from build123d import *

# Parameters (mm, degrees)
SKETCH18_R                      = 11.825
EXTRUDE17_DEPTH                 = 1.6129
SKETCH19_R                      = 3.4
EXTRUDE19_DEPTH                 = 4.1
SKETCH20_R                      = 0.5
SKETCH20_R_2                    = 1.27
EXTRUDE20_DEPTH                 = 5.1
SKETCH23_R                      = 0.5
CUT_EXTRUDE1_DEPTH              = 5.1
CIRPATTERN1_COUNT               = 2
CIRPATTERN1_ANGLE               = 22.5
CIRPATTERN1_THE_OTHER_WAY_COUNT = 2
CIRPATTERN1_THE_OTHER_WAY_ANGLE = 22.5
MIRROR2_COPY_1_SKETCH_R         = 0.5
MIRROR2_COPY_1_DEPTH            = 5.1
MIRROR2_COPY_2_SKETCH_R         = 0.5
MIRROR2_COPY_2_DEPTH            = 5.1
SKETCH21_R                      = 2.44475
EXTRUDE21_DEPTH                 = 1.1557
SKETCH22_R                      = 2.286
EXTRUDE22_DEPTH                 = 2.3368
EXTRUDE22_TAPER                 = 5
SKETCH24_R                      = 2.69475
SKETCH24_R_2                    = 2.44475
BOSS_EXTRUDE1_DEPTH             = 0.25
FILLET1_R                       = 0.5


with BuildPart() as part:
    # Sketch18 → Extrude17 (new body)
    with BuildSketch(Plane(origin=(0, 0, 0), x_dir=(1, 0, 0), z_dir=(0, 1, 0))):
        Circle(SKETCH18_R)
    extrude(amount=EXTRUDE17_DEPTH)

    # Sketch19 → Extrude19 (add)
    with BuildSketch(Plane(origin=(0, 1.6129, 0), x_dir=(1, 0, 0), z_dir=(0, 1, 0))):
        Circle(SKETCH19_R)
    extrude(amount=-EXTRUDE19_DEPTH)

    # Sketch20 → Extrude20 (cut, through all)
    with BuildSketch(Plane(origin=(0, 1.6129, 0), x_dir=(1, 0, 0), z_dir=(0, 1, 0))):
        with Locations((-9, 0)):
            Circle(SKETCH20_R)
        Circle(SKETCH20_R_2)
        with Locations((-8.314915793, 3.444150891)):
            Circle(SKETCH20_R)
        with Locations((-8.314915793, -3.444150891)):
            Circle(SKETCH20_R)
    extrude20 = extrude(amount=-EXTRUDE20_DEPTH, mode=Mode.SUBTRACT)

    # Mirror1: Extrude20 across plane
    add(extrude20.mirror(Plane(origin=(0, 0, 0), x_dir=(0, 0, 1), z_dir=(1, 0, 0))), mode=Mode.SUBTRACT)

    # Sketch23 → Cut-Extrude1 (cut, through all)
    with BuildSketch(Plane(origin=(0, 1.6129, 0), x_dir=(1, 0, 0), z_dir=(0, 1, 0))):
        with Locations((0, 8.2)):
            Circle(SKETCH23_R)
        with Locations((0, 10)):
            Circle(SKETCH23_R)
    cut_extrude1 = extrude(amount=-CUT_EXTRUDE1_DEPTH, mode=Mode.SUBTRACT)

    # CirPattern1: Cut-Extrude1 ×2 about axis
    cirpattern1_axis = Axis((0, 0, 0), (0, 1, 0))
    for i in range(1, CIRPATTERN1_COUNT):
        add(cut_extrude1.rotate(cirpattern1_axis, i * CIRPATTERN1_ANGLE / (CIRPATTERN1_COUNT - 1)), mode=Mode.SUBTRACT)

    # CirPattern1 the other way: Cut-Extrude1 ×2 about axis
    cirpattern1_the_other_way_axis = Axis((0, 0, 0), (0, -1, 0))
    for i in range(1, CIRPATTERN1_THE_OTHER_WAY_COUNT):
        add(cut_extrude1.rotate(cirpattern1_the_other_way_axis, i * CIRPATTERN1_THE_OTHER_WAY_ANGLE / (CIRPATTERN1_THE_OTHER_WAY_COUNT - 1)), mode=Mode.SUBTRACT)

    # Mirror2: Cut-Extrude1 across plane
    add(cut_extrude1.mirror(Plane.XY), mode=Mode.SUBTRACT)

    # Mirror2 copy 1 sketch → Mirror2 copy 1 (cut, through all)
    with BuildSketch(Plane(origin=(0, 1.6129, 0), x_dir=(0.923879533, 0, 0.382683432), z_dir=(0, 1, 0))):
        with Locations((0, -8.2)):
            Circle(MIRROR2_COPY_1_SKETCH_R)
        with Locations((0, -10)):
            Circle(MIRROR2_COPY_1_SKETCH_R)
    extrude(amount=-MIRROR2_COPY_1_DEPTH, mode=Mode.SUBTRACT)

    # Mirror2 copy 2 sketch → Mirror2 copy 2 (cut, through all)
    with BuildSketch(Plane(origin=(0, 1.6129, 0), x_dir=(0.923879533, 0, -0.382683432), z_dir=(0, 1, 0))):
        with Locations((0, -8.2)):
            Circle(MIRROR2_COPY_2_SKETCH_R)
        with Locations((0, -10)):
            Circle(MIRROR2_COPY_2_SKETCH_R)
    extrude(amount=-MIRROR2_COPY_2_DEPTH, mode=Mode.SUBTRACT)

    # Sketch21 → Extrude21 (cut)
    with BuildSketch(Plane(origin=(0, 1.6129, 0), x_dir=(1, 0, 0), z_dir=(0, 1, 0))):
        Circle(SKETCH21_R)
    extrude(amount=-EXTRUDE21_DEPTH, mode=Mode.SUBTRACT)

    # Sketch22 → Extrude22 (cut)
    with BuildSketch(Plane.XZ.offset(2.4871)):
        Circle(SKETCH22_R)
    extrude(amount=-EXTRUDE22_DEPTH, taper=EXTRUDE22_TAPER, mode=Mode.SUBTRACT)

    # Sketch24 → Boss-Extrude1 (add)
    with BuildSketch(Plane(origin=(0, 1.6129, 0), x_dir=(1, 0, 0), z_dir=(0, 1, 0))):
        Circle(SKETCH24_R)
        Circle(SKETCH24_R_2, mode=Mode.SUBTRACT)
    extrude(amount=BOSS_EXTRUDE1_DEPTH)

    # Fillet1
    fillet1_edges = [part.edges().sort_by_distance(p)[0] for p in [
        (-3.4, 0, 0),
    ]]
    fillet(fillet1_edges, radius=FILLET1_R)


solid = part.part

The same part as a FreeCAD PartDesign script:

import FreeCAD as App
import Part
import Sketcher
Q = App.Units.Quantity


def edges_at(feature, points):
    """Names of the edges that pass closest to the given points."""
    edges = feature.Shape.Edges
    near = lambda p: min(range(len(edges)), key=lambda i: edges[i].distToShape(Part.Vertex(*p))[0])
    return sorted({f"Edge{near(p) + 1}" for p in points})

doc = App.newDocument("Part")
body = doc.addObject("PartDesign::Body", "Body")

sketch1 = doc.addObject("Sketcher::SketchObject", "Sketch")
body.addObject(sketch1)
sketch1.AttachmentSupport = (doc.XZ_Plane, [""])
sketch1.MapMode = "FlatFace"
sketch1.addGeometry(Part.Circle(App.Vector(0, 0, 0), App.Vector(0, 0, 1), 11.825), False)
sketch1.addConstraint(Sketcher.Constraint("Coincident", 0, 3, -1, 1))
sketch1.addConstraint(Sketcher.Constraint("Diameter", 0, Q("23.65 mm")))
pad1 = doc.addObject("PartDesign::Pad", "Pad")
body.addObject(pad1)
pad1.Profile = sketch1
pad1.Length = 1.6129
pad1.Reversed = True

sketch2 = doc.addObject("Sketcher::SketchObject", "Sketch001")
body.addObject(sketch2)
sketch2.AttachmentSupport = (doc.XZ_Plane, [""])
sketch2.MapMode = "FlatFace"
sketch2.AttachmentOffset = App.Placement(App.Vector(0, 0, -1.6129), App.Rotation())
sketch2.addGeometry(Part.Circle(App.Vector(0, 0, 0), App.Vector(0, 0, 1), 3.4), False)
sketch2.addConstraint(Sketcher.Constraint("Coincident", 0, 3, -1, 1))
sketch2.addConstraint(Sketcher.Constraint("Diameter", 0, Q("6.8 mm")))
pad2 = doc.addObject("PartDesign::Pad", "Pad001")
body.addObject(pad2)
pad2.Profile = sketch2
pad2.Length = 4.1

sketch3 = doc.addObject("Sketcher::SketchObject", "Sketch002")
body.addObject(sketch3)
sketch3.AttachmentSupport = (doc.XZ_Plane, [""])
sketch3.MapMode = "FlatFace"
sketch3.AttachmentOffset = App.Placement(App.Vector(0, 0, -1.6129), App.Rotation())
sketch3.addGeometry(Part.Circle(App.Vector(-9, 0, 0), App.Vector(0, 0, 1), 0.5), False)
sketch3.addGeometry(Part.Circle(App.Vector(0, 0, 0), App.Vector(0, 0, 1), 1.27), False)
sketch3.addGeometry(Part.Circle(App.Vector(-8.314916, -3.444151, 0), App.Vector(0, 0, 1), 0.5), False)
sketch3.addGeometry(Part.Circle(App.Vector(-8.314916, 3.444151, 0), App.Vector(0, 0, 1), 0.5), False)
sketch3.addConstraint(Sketcher.Constraint("Coincident", 1, 3, -1, 1))
sketch3.addConstraint(Sketcher.Constraint("Equal", 0, 2))
sketch3.addConstraint(Sketcher.Constraint("Equal", 2, 3))
sketch3.addConstraint(Sketcher.Constraint("Symmetric", 2, 3, 3, 3, -1))
sketch3.addConstraint(Sketcher.Constraint("PointOnObject", 0, 3, -1))
sketch3.addConstraint(Sketcher.Constraint("Diameter", 0, Q("1 mm")))
sketch3.addConstraint(Sketcher.Constraint("Diameter", 1, Q("2.54 mm")))
sketch3.addConstraint(Sketcher.Constraint("DistanceX", 0, 3, -1, 1, Q("9 mm")))
sketch3.addConstraint(Sketcher.Constraint("DistanceY", 2, 3, 3, 3, Q("6.888302 mm")))
sketch3.addConstraint(Sketcher.Constraint("DistanceX", 2, 3, -1, 1, Q("8.314916 mm")))
pocket1 = doc.addObject("PartDesign::Pocket", "Pocket")
body.addObject(pocket1)
pocket1.Profile = sketch3
pocket1.Type = "ThroughAll"
pocket1.Reversed = True
doc.recompute()

mirrored = doc.addObject("PartDesign::Mirrored", "Mirrored")
body.addObject(mirrored)
mirrored.Originals = [pocket1]
mirrored.MirrorPlane = (doc.YZ_Plane, [""])
body.Tip = mirrored

sketch4 = doc.addObject("Sketcher::SketchObject", "Sketch003")
body.addObject(sketch4)
sketch4.AttachmentSupport = (doc.XZ_Plane, [""])
sketch4.MapMode = "FlatFace"
sketch4.AttachmentOffset = App.Placement(App.Vector(0, 0, -1.6129), App.Rotation())
sketch4.addGeometry(Part.Circle(App.Vector(0, -8.2, 0), App.Vector(0, 0, 1), 0.5), False)
sketch4.addGeometry(Part.Circle(App.Vector(0, -10, 0), App.Vector(0, 0, 1), 0.5), False)
sketch4.addConstraint(Sketcher.Constraint("Equal", 0, 1))
sketch4.addConstraint(Sketcher.Constraint("PointOnObject", 0, 3, -2))
sketch4.addConstraint(Sketcher.Constraint("PointOnObject", 1, 3, -2))
sketch4.addConstraint(Sketcher.Constraint("Diameter", 0, Q("1 mm")))
sketch4.addConstraint(Sketcher.Constraint("DistanceY", 1, 3, -1, 1, Q("10 mm")))
sketch4.addConstraint(Sketcher.Constraint("DistanceY", 0, 3, -1, 1, Q("8.2 mm")))
pocket2 = doc.addObject("PartDesign::Pocket", "Pocket001")
body.addObject(pocket2)
pocket2.Profile = sketch4
pocket2.Type = "ThroughAll"
pocket2.Reversed = True
doc.recompute()

polarpattern = doc.addObject("PartDesign::PolarPattern", "PolarPattern")
body.addObject(polarpattern)
polarpattern.Originals = [pocket2]
polarpattern.Axis = (doc.Y_Axis, [""])
polarpattern.Angle = 22.5
polarpattern.Occurrences = 2
body.Tip = polarpattern
doc.recompute()

polarpattern2 = doc.addObject("PartDesign::PolarPattern", "PolarPattern001")
body.addObject(polarpattern2)
polarpattern2.Originals = [pocket2]
polarpattern2.Axis = (doc.Y_Axis, [""])
polarpattern2.Angle = 22.5
polarpattern2.Occurrences = 2
polarpattern2.Reversed = True
body.Tip = polarpattern2
doc.recompute()

mirrored2 = doc.addObject("PartDesign::Mirrored", "Mirrored001")
body.addObject(mirrored2)
mirrored2.Originals = [pocket2]
mirrored2.MirrorPlane = (doc.XY_Plane, [""])
body.Tip = mirrored2

sketch5 = doc.addObject("Sketcher::SketchObject", "Sketch004")
body.addObject(sketch5)
sketch5.AttachmentSupport = (doc.XZ_Plane, [""])
sketch5.MapMode = "FlatFace"
sketch5.AttachmentOffset = App.Placement(App.Vector(0, 0, -1.6129), App.Rotation())
sketch5.addGeometry(Part.Circle(App.Vector(-3.138004, 7.575812, 0), App.Vector(0, 0, 1), 0.5), False)
sketch5.addGeometry(Part.Circle(App.Vector(-3.826834, 9.238795, 0), App.Vector(0, 0, 1), 0.5), False)
sketch5.addConstraint(Sketcher.Constraint("Equal", 0, 1))
sketch5.addConstraint(Sketcher.Constraint("Diameter", 0, Q("1 mm")))
sketch5.addConstraint(Sketcher.Constraint("DistanceX", 1, 3, 0, 3, Q("0.68883 mm")))
sketch5.addConstraint(Sketcher.Constraint("DistanceX", 0, 3, -1, 1, Q("3.138004 mm")))
sketch5.addConstraint(Sketcher.Constraint("DistanceY", -1, 1, 0, 3, Q("7.575812 mm")))
sketch5.addConstraint(Sketcher.Constraint("DistanceY", -1, 1, 1, 3, Q("9.238795 mm")))
pocket3 = doc.addObject("PartDesign::Pocket", "Pocket002")
body.addObject(pocket3)
pocket3.Profile = sketch5
pocket3.Type = "ThroughAll"
pocket3.Reversed = True

sketch6 = doc.addObject("Sketcher::SketchObject", "Sketch005")
body.addObject(sketch6)
sketch6.AttachmentSupport = (doc.XZ_Plane, [""])
sketch6.MapMode = "FlatFace"
sketch6.AttachmentOffset = App.Placement(App.Vector(0, 0, -1.6129), App.Rotation())
sketch6.addGeometry(Part.Circle(App.Vector(3.138004, 7.575812, 0), App.Vector(0, 0, 1), 0.5), False)
sketch6.addGeometry(Part.Circle(App.Vector(3.826834, 9.238795, 0), App.Vector(0, 0, 1), 0.5), False)
sketch6.addConstraint(Sketcher.Constraint("Equal", 0, 1))
sketch6.addConstraint(Sketcher.Constraint("Diameter", 0, Q("1 mm")))
sketch6.addConstraint(Sketcher.Constraint("DistanceX", 0, 3, 1, 3, Q("0.68883 mm")))
sketch6.addConstraint(Sketcher.Constraint("DistanceX", -1, 1, 0, 3, Q("3.138004 mm")))
sketch6.addConstraint(Sketcher.Constraint("DistanceY", -1, 1, 0, 3, Q("7.575812 mm")))
sketch6.addConstraint(Sketcher.Constraint("DistanceY", -1, 1, 1, 3, Q("9.238795 mm")))
pocket4 = doc.addObject("PartDesign::Pocket", "Pocket003")
body.addObject(pocket4)
pocket4.Profile = sketch6
pocket4.Type = "ThroughAll"
pocket4.Reversed = True

sketch7 = doc.addObject("Sketcher::SketchObject", "Sketch006")
body.addObject(sketch7)
sketch7.AttachmentSupport = (doc.XZ_Plane, [""])
sketch7.MapMode = "FlatFace"
sketch7.AttachmentOffset = App.Placement(App.Vector(0, 0, -1.6129), App.Rotation())
sketch7.addGeometry(Part.Circle(App.Vector(0, 0, 0), App.Vector(0, 0, 1), 2.44475), False)
sketch7.addConstraint(Sketcher.Constraint("Coincident", 0, 3, -1, 1))
sketch7.addConstraint(Sketcher.Constraint("Diameter", 0, Q("4.8895 mm")))
pocket5 = doc.addObject("PartDesign::Pocket", "Pocket004")
body.addObject(pocket5)
pocket5.Profile = sketch7
pocket5.Length = 1.1557
pocket5.Reversed = True

sketch8 = doc.addObject("Sketcher::SketchObject", "Sketch007")
body.addObject(sketch8)
sketch8.AttachmentSupport = (doc.XZ_Plane, [""])
sketch8.MapMode = "FlatFace"
sketch8.AttachmentOffset = App.Placement(App.Vector(0, 0, 2.4871), App.Rotation())
sketch8.addGeometry(Part.Circle(App.Vector(0, 0, 0), App.Vector(0, 0, 1), 2.286), False)
sketch8.addConstraint(Sketcher.Constraint("Coincident", 0, 3, -1, 1))
sketch8.addConstraint(Sketcher.Constraint("Diameter", 0, Q("4.572 mm")))
pocket6 = doc.addObject("PartDesign::Pocket", "Pocket005")
body.addObject(pocket6)
pocket6.Profile = sketch8
pocket6.Length = 2.3368
pocket6.TaperAngle = -5

sketch9 = doc.addObject("Sketcher::SketchObject", "Sketch008")
body.addObject(sketch9)
sketch9.AttachmentSupport = (doc.XZ_Plane, [""])
sketch9.MapMode = "FlatFace"
sketch9.AttachmentOffset = App.Placement(App.Vector(0, 0, -1.6129), App.Rotation())
sketch9.addGeometry(Part.Circle(App.Vector(0, 0, 0), App.Vector(0, 0, 1), 2.69475), False)
sketch9.addGeometry(Part.Circle(App.Vector(0, 0, 0), App.Vector(0, 0, 1), 2.44475), False)
sketch9.addConstraint(Sketcher.Constraint("Coincident", 0, 3, -1, 1))
sketch9.addConstraint(Sketcher.Constraint("Coincident", 1, 3, -1, 1))
sketch9.addConstraint(Sketcher.Constraint("Diameter", 0, Q("5.3895 mm")))
sketch9.addConstraint(Sketcher.Constraint("Diameter", 1, Q("4.8895 mm")))
pad3 = doc.addObject("PartDesign::Pad", "Pad002")
body.addObject(pad3)
pad3.Profile = sketch9
pad3.Length = 0.25
pad3.Reversed = True
doc.recompute()

fillet = doc.addObject("PartDesign::Fillet", "Fillet")
body.addObject(fillet)
fillet.Base = (pad3, edges_at(pad3, [(-3.4, 0, 0)]))
fillet.Radius = 0.5

doc.recompute()
